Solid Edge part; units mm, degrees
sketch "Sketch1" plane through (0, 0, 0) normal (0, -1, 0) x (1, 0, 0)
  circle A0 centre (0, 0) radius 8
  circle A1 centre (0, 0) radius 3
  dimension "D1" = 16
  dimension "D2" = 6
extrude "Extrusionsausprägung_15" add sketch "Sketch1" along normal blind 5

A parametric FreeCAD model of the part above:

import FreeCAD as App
import Part
import Sketcher

doc = App.newDocument("Part")
body = doc.addObject("PartDesign::Body", "Body")

# Sketch on XZ plane
sketch1 = body.newObject("Sketcher::SketchObject", "Sketch")
sketch1.AttachmentSupport = (doc.getObject("XZ_Plane"), [""])
sketch1.MapMode = "FlatFace"
sketch1.addGeometry([
    Part.Circle(App.Vector(0, 0, 0), App.Vector(0, 0, 1), 8),
    Part.Circle(App.Vector(0, 0, 0), App.Vector(0, 0, 1), 3),
], False)
sketch1.addConstraint([
    Sketcher.Constraint("Coincident", 0, 3, -1, 1),
    Sketcher.Constraint("Coincident", 1, 3, -1, 1),
    Sketcher.Constraint("Diameter", 0, 16.0),
    Sketcher.Constraint("Diameter", 1, 6.0),
])
pad1 = body.newObject("PartDesign::Pad", "Pad")
pad1.Profile = sketch1
pad1.Length = 5

doc.recompute()
